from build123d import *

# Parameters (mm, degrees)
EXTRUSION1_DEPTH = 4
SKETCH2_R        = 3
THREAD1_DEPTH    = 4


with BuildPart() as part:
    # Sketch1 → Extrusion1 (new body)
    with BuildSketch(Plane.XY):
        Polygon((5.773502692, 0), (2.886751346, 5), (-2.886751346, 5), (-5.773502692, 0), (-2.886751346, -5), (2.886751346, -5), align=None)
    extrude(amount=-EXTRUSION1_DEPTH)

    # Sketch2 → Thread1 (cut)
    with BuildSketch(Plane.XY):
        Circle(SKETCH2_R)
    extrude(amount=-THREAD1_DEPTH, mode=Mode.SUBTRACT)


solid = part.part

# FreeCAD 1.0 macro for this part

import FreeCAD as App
import Part
import Sketcher
Q = App.Units.Quantity


def add_polygon(sketch, points):
    """Adds a closed chain of lines whose ends are joined by coincident constraints."""
    first, n = sketch.GeometryCount, len(points)
    for a, b in zip(points, points[1:] + points[:1]):
        sketch.addGeometry(Part.LineSegment(App.Vector(*a, 0), App.Vector(*b, 0)), False)
    for i in range(n):
        sketch.addConstraint(Sketcher.Constraint("Coincident", first + i, 2, first + (i + 1) % n, 1))

doc = App.newDocument("Part")
params = doc.addObject("Spreadsheet::Sheet", "Params")
for row, (alias, value) in enumerate([
    ("pad1_length", "4 mm"),
    ("sketch2_diameter", "6 mm"),
    ("pocket1_length", "4 mm"),
], start=1):
    params.set(f"A{row}", alias)
    params.set(f"B{row}", "=" + value)
    params.setAlias(f"B{row}", alias)

body = doc.addObject("PartDesign::Body", "Body")

sketch1 = body.newObject("Sketcher::SketchObject", "Sketch")
sketch1.AttachmentSupport = (doc.getObject("XY_Plane"), [""])
sketch1.MapMode = "FlatFace"
add_polygon(sketch1, [(6, 0), (3, 5), (-3, 5), (-6, 0), (-3, -5), (3, -5)])
sketch1.addConstraint(Sketcher.Constraint("Horizontal", 1))
sketch1.addConstraint(Sketcher.Constraint("Horizontal", 4))
sketch1.addConstraint(Sketcher.Constraint("Symmetric", 0, 2, 3, 2, -1, 1))
sketch1.addConstraint(Sketcher.Constraint("Symmetric", 2, 2, 5, 2, -1, 1))
sketch1.addConstraint(Sketcher.Constraint("PointOnObject", 2, 2, -1))
sketch1.addConstraint(Sketcher.Constraint("Parallel", 2, 5))
sketch1.addConstraint(Sketcher.Constraint("Vertical", 1, 2, 3, 2))
sketch1.addConstraint(Sketcher.Constraint("Angle", 0, Q("120 deg")))
sketch1.addConstraint(Sketcher.Constraint("DistanceY", -1, 1, 0, 2, 5.0))
sketch1.addConstraint(Sketcher.Constraint("DistanceX", 1, 2, 1, 1, 5.773503))
pad1 = body.newObject("PartDesign::Pad", "Pad")
pad1.Profile = sketch1
pad1.setExpression("Length", "Params.pad1_length")
pad1.Reversed = True

sketch2 = body.newObject("Sketcher::SketchObject", "Sketch001")
sketch2.AttachmentSupport = (doc.getObject("XY_Plane"), [""])
sketch2.MapMode = "FlatFace"
sketch2.addGeometry(Part.Circle(App.Vector(0, 0, 0), App.Vector(0, 0, 1), 3), False)
sketch2.addConstraint(Sketcher.Constraint("Coincident", 0, 3, -1, 1))
sketch2.addConstraint(Sketcher.Constraint("Diameter", 0, 6.0))
sketch2.setExpression("Constraints[1]", "Params.sketch2_diameter")
pocket1 = body.newObject("PartDesign::Pocket", "Pocket")
pocket1.Profile = sketch2
pocket1.setExpression("Length", "Params.pocket1_length")

doc.recompute()
